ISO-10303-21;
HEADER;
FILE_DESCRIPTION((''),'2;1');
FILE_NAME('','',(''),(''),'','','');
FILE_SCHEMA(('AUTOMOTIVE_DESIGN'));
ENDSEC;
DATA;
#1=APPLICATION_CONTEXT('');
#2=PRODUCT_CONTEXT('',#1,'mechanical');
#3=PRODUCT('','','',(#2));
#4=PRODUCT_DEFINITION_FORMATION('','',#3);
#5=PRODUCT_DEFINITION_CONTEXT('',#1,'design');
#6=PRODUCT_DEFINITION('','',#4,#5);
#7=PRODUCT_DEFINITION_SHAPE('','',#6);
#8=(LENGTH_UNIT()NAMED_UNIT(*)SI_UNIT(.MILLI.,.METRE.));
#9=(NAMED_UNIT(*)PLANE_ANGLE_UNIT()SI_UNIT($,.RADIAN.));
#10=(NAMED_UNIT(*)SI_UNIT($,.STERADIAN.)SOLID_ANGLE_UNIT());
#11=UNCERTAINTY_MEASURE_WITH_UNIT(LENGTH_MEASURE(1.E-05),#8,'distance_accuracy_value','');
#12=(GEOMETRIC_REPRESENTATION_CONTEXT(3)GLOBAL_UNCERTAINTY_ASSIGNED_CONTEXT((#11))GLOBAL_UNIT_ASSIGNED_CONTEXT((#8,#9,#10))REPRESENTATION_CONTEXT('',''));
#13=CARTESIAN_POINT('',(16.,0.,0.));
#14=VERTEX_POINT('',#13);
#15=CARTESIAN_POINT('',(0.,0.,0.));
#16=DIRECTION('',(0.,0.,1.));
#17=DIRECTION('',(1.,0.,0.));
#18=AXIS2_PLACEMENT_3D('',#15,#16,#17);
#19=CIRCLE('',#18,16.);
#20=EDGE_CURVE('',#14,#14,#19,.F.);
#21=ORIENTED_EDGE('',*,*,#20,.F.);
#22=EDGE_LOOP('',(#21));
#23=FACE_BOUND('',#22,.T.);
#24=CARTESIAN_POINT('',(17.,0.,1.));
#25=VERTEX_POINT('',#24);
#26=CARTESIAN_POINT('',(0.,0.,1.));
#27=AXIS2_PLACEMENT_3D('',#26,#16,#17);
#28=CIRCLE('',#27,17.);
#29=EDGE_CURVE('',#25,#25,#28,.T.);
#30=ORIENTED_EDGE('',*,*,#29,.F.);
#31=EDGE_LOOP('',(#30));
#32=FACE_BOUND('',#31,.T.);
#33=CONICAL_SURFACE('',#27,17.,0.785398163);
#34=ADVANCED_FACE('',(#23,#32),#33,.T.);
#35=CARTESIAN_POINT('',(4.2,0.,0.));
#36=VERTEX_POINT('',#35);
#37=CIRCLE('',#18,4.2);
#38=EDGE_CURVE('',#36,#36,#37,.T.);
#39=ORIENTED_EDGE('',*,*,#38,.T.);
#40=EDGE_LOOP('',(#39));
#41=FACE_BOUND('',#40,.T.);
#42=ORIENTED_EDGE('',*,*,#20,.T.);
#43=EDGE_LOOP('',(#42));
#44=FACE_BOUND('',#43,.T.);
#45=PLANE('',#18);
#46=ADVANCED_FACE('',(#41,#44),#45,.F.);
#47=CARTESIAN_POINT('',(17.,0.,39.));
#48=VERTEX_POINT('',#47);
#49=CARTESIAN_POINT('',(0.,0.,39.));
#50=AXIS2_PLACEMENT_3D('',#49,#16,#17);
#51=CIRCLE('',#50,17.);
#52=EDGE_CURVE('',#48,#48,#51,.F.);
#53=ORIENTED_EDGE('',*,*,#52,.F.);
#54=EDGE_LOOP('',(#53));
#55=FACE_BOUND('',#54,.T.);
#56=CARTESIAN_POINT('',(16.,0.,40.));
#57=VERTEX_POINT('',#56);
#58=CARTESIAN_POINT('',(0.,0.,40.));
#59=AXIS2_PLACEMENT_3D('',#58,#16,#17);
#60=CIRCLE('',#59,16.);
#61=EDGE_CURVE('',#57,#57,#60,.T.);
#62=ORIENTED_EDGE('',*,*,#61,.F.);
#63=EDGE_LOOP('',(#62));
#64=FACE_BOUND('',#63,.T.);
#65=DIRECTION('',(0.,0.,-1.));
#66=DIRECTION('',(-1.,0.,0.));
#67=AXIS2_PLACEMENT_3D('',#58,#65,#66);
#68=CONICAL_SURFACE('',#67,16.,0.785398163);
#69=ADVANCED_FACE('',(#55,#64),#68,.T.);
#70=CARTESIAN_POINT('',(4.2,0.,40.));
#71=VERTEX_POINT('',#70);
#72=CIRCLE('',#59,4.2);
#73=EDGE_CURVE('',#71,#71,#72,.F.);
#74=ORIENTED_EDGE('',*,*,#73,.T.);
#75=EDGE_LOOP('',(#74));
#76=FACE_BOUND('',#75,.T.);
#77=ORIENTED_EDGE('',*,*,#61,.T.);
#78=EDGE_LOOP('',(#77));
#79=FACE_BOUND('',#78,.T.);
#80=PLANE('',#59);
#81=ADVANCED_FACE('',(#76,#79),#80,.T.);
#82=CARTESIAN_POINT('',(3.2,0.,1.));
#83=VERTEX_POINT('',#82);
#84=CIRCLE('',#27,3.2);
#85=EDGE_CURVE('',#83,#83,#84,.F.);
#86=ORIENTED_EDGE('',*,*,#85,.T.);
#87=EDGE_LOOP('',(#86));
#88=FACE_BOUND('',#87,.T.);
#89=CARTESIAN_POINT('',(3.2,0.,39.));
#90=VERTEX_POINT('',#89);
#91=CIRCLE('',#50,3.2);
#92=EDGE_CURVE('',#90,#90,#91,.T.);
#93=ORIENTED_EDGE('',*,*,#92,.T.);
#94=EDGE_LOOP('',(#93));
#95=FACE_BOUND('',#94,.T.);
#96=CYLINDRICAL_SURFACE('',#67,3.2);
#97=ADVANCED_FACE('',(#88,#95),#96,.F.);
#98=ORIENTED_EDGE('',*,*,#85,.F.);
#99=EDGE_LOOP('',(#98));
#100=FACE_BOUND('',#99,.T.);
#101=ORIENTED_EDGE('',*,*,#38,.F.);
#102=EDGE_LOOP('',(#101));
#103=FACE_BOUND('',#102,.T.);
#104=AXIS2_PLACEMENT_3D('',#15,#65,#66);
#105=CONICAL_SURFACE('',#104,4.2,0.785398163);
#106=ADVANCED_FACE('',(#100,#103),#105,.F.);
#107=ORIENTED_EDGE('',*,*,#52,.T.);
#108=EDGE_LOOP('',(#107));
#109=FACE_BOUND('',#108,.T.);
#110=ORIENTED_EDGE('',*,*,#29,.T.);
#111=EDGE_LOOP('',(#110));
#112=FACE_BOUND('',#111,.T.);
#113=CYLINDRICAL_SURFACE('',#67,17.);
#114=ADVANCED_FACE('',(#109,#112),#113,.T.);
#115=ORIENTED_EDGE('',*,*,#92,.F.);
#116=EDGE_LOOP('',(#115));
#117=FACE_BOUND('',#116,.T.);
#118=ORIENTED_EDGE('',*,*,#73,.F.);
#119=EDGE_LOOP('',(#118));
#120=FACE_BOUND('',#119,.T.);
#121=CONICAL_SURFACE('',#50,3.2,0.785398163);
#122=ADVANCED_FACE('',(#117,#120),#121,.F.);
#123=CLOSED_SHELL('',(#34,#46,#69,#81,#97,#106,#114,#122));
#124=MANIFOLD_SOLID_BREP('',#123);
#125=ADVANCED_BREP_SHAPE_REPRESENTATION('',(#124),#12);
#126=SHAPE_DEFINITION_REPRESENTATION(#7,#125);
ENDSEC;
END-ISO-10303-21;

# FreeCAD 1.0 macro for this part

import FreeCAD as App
import Part
import Sketcher

V = App.Vector


def edges_at(feature, points):
    """Names of the edges that pass closest to the given points."""
    edges = feature.Shape.Edges
    near = lambda p: min(range(len(edges)), key=lambda i: edges[i].distToShape(Part.Vertex(*p))[0])
    return sorted({f"Edge{near(p) + 1}" for p in points})

doc = App.newDocument("Part")
body = doc.addObject("PartDesign::Body", "Body")

# Sketch on XY plane
sketch1 = body.newObject("Sketcher::SketchObject", "Sketch")
sketch1.AttachmentSupport = (doc.getObject("XY_Plane"), [""])
sketch1.MapMode = "FlatFace"
sketch1.addGeometry([
    Part.Circle(V(0, 0, 0), V(0, 0, 1), 17),
    Part.Circle(V(0, 0, 0), V(0, 0, 1), 3.2),
], False)
sketch1.addConstraint([
    Sketcher.Constraint("Coincident", 0, 3, -1, 1),
    Sketcher.Constraint("Coincident", 1, 3, -1, 1),
    Sketcher.Constraint("Diameter", 0, 34.0),
    Sketcher.Constraint("Diameter", 1, 6.4),
])
pad1 = body.newObject("PartDesign::Pad", "Pad")
pad1.Profile = sketch1
pad1.Length = 40
doc.recompute()

chamfer = body.newObject("PartDesign::Chamfer", "Chamfer")
chamfer.Base = (pad1, edges_at(pad1, [
    (-17, 0, 0),
    (-17, 0, 40),
    (-3.2, 0, 0),
    (-3.2, 0, 40),
]))
chamfer.Size = 1

doc.recompute()
